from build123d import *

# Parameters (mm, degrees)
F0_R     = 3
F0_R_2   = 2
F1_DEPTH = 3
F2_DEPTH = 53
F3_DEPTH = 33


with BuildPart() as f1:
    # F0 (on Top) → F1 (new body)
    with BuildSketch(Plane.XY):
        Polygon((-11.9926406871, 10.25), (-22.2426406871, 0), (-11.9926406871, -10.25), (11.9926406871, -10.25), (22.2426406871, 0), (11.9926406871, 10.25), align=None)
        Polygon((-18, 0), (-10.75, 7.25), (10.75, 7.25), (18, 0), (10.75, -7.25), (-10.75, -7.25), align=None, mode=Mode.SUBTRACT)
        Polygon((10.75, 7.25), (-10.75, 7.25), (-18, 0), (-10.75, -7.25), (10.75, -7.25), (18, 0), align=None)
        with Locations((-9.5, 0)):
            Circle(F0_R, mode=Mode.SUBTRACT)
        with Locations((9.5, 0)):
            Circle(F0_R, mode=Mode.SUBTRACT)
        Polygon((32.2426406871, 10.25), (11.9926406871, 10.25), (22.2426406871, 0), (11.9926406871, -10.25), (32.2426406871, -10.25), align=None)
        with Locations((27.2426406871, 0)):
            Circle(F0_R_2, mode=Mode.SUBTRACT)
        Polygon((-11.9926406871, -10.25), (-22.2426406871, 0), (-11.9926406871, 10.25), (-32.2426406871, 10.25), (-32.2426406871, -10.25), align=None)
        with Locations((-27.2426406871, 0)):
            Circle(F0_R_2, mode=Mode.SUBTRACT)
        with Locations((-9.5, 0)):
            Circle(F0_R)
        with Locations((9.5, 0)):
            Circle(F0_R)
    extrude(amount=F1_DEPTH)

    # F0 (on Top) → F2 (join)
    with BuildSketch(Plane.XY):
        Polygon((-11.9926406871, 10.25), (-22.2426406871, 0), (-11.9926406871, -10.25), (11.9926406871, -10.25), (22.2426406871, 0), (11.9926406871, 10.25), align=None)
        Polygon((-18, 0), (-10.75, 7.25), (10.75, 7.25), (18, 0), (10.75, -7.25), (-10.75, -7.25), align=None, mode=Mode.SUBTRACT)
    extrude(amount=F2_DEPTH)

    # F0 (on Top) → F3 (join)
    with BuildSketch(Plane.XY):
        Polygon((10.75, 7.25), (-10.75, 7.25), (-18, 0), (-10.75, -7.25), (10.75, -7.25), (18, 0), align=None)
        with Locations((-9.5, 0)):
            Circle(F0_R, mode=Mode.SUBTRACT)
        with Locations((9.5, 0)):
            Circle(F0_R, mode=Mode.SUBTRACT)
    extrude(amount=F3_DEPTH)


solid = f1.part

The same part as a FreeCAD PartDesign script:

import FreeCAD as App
import Part
import Sketcher
Q = App.Units.Quantity


def add_polygon(sketch, points):
    """Adds a closed chain of lines whose ends are joined by coincident constraints."""
    first, n = sketch.GeometryCount, len(points)
    for a, b in zip(points, points[1:] + points[:1]):
        sketch.addGeometry(Part.LineSegment(App.Vector(*a, 0), App.Vector(*b, 0)), False)
    for i in range(n):
        sketch.addConstraint(Sketcher.Constraint("Coincident", first + i, 2, first + (i + 1) % n, 1))

doc = App.newDocument("Part")
body = doc.addObject("PartDesign::Body", "Body")

sketch1 = body.newObject("Sketcher::SketchObject", "Sketch")
sketch1.AttachmentSupport = (doc.getObject("XY_Plane"), [""])
sketch1.MapMode = "FlatFace"
add_polygon(sketch1, [(32.242641, 10.25), (-32.242641, 10.25), (-32.242641, -10.25), (32.242641, -10.25)])
sketch1.addGeometry(Part.Circle(App.Vector(-27.242641, 0, 0), App.Vector(0, 0, 1), 2), False)
sketch1.addGeometry(Part.Circle(App.Vector(27.242641, 0, 0), App.Vector(0, 0, 1), 2), False)
sketch1.addConstraint(Sketcher.Constraint("Horizontal", 0))
sketch1.addConstraint(Sketcher.Constraint("Vertical", 1))
sketch1.addConstraint(Sketcher.Constraint("Horizontal", 2))
sketch1.addConstraint(Sketcher.Constraint("Vertical", 3))
sketch1.addConstraint(Sketcher.Constraint("Equal", 4, 5))
sketch1.addConstraint(Sketcher.Constraint("Symmetric", 4, 3, 5, 3, -1, 1))
sketch1.addConstraint(Sketcher.Constraint("Symmetric", 0, 2, 2, 2, -1, 1))
sketch1.addConstraint(Sketcher.Constraint("PointOnObject", 4, 3, -1))
sketch1.addConstraint(Sketcher.Constraint("Diameter", 4, Q("4 mm")))
sketch1.addConstraint(Sketcher.Constraint("DistanceY", 1, 2, 1, 1, Q("20.5 mm")))
sketch1.addConstraint(Sketcher.Constraint("DistanceX", 0, 2, 4, 3, Q("5 mm")))
sketch1.addConstraint(Sketcher.Constraint("DistanceX", 0, 2, 0, 1, Q("64.485281 mm")))
pad1 = body.newObject("PartDesign::Pad", "Pad")
pad1.Profile = sketch1
pad1.Length = 3

sketch2 = body.newObject("Sketcher::SketchObject", "Sketch001")
sketch2.AttachmentSupport = (doc.getObject("XY_Plane"), [""])
sketch2.MapMode = "FlatFace"
add_polygon(sketch2, [(-11.992641, 10.25), (-22.242641, 0), (-11.992641, -10.25), (11.992641, -10.25), (22.242641, 0), (11.992641, 10.25)])
add_polygon(sketch2, [(-10.75, -7.25), (-18, 0), (-10.75, 7.25), (10.75, 7.25), (18, 0), (10.75, -7.25)])
sketch2.addConstraint(Sketcher.Constraint("Horizontal", 2))
sketch2.addConstraint(Sketcher.Constraint("Horizontal", 5))
sketch2.addConstraint(Sketcher.Constraint("Horizontal", 8))
sketch2.addConstraint(Sketcher.Constraint("Horizontal", 11))
sketch2.addConstraint(Sketcher.Constraint("Symmetric", 0, 2, 3, 2, -1, 1))
sketch2.addConstraint(Sketcher.Constraint("Symmetric", 1, 2, 4, 2, -1, 1))
sketch2.addConstraint(Sketcher.Constraint("Symmetric", 6, 2, 9, 2, -1, 1))
sketch2.addConstraint(Sketcher.Constraint("Symmetric", 7, 2, 10, 2, -1, 1))
sketch2.addConstraint(Sketcher.Constraint("PointOnObject", 0, 2, -1))
sketch2.addConstraint(Sketcher.Constraint("PointOnObject", 6, 2, -1))
sketch2.addConstraint(Sketcher.Constraint("Perpendicular", 0, 1))
sketch2.addConstraint(Sketcher.Constraint("Perpendicular", 1, 3))
sketch2.addConstraint(Sketcher.Constraint("Parallel", 4, 6))
sketch2.addConstraint(Sketcher.Constraint("Perpendicular", 6, 7))
sketch2.addConstraint(Sketcher.Constraint("Perpendicular", 7, 9))
sketch2.addConstraint(Sketcher.Constraint("Vertical", 2, 2, 4, 2))
sketch2.addConstraint(Sketcher.Constraint("DistanceX", 8, 1, 8, 2, Q("21.5 mm")))
sketch2.addConstraint(Sketcher.Constraint("DistanceX", 6, 2, -1, 1, Q("18 mm")))
sketch2.addConstraint(Sketcher.Constraint("DistanceY", 7, 2, 5, 2, Q("3 mm")))
sketch2.addConstraint(Sketcher.Constraint("DistanceX", 2, 1, 2, 2, Q("23.985281 mm")))
pad2 = body.newObject("PartDesign::Pad", "Pad001")
pad2.Profile = sketch2
pad2.Length = 53

sketch3 = body.newObject("Sketcher::SketchObject", "Sketch002")
sketch3.AttachmentSupport = (doc.getObject("XY_Plane"), [""])
sketch3.MapMode = "FlatFace"
add_polygon(sketch3, [(10.75, 7.25), (-10.75, 7.25), (-18, 0), (-10.75, -7.25), (10.75, -7.25), (18, 0)])
sketch3.addGeometry(Part.Circle(App.Vector(-9.5, 0, 0), App.Vector(0, 0, 1), 3), False)
sketch3.addGeometry(Part.Circle(App.Vector(9.5, 0, 0), App.Vector(0, 0, 1), 3), False)
sketch3.addConstraint(Sketcher.Constraint("Horizontal", 0))
sketch3.addConstraint(Sketcher.Constraint("Horizontal", 3))
sketch3.addConstraint(Sketcher.Constraint("Equal", 6, 7))
sketch3.addConstraint(Sketcher.Constraint("Symmetric", 6, 3, 7, 3, -1, 1))
sketch3.addConstraint(Sketcher.Constraint("Symmetric", 0, 2, 3, 2, -1, 1))
sketch3.addConstraint(Sketcher.Constraint("Symmetric", 1, 2, 4, 2, -1, 1))
sketch3.addConstraint(Sketcher.Constraint("PointOnObject", 6, 3, -1))
sketch3.addConstraint(Sketcher.Constraint("PointOnObject", 1, 2, -1))
sketch3.addConstraint(Sketcher.Constraint("Perpendicular", 1, 2))
sketch3.addConstraint(Sketcher.Constraint("Perpendicular", 4, 5))
sketch3.addConstraint(Sketcher.Constraint("Vertical", 0, 2, 2, 2))
sketch3.addConstraint(Sketcher.Constraint("Diameter", 6, Q("6 mm")))
sketch3.addConstraint(Sketcher.Constraint("DistanceX", 0, 2, 0, 1, Q("21.5 mm")))
sketch3.addConstraint(Sketcher.Constraint("DistanceX", 1, 2, -1, 1, Q("18 mm")))
sketch3.addConstraint(Sketcher.Constraint("DistanceX", 6, 3, 7, 3, Q("19 mm")))
pad3 = body.newObject("PartDesign::Pad", "Pad002")
pad3.Profile = sketch3
pad3.Length = 33

doc.recompute()
